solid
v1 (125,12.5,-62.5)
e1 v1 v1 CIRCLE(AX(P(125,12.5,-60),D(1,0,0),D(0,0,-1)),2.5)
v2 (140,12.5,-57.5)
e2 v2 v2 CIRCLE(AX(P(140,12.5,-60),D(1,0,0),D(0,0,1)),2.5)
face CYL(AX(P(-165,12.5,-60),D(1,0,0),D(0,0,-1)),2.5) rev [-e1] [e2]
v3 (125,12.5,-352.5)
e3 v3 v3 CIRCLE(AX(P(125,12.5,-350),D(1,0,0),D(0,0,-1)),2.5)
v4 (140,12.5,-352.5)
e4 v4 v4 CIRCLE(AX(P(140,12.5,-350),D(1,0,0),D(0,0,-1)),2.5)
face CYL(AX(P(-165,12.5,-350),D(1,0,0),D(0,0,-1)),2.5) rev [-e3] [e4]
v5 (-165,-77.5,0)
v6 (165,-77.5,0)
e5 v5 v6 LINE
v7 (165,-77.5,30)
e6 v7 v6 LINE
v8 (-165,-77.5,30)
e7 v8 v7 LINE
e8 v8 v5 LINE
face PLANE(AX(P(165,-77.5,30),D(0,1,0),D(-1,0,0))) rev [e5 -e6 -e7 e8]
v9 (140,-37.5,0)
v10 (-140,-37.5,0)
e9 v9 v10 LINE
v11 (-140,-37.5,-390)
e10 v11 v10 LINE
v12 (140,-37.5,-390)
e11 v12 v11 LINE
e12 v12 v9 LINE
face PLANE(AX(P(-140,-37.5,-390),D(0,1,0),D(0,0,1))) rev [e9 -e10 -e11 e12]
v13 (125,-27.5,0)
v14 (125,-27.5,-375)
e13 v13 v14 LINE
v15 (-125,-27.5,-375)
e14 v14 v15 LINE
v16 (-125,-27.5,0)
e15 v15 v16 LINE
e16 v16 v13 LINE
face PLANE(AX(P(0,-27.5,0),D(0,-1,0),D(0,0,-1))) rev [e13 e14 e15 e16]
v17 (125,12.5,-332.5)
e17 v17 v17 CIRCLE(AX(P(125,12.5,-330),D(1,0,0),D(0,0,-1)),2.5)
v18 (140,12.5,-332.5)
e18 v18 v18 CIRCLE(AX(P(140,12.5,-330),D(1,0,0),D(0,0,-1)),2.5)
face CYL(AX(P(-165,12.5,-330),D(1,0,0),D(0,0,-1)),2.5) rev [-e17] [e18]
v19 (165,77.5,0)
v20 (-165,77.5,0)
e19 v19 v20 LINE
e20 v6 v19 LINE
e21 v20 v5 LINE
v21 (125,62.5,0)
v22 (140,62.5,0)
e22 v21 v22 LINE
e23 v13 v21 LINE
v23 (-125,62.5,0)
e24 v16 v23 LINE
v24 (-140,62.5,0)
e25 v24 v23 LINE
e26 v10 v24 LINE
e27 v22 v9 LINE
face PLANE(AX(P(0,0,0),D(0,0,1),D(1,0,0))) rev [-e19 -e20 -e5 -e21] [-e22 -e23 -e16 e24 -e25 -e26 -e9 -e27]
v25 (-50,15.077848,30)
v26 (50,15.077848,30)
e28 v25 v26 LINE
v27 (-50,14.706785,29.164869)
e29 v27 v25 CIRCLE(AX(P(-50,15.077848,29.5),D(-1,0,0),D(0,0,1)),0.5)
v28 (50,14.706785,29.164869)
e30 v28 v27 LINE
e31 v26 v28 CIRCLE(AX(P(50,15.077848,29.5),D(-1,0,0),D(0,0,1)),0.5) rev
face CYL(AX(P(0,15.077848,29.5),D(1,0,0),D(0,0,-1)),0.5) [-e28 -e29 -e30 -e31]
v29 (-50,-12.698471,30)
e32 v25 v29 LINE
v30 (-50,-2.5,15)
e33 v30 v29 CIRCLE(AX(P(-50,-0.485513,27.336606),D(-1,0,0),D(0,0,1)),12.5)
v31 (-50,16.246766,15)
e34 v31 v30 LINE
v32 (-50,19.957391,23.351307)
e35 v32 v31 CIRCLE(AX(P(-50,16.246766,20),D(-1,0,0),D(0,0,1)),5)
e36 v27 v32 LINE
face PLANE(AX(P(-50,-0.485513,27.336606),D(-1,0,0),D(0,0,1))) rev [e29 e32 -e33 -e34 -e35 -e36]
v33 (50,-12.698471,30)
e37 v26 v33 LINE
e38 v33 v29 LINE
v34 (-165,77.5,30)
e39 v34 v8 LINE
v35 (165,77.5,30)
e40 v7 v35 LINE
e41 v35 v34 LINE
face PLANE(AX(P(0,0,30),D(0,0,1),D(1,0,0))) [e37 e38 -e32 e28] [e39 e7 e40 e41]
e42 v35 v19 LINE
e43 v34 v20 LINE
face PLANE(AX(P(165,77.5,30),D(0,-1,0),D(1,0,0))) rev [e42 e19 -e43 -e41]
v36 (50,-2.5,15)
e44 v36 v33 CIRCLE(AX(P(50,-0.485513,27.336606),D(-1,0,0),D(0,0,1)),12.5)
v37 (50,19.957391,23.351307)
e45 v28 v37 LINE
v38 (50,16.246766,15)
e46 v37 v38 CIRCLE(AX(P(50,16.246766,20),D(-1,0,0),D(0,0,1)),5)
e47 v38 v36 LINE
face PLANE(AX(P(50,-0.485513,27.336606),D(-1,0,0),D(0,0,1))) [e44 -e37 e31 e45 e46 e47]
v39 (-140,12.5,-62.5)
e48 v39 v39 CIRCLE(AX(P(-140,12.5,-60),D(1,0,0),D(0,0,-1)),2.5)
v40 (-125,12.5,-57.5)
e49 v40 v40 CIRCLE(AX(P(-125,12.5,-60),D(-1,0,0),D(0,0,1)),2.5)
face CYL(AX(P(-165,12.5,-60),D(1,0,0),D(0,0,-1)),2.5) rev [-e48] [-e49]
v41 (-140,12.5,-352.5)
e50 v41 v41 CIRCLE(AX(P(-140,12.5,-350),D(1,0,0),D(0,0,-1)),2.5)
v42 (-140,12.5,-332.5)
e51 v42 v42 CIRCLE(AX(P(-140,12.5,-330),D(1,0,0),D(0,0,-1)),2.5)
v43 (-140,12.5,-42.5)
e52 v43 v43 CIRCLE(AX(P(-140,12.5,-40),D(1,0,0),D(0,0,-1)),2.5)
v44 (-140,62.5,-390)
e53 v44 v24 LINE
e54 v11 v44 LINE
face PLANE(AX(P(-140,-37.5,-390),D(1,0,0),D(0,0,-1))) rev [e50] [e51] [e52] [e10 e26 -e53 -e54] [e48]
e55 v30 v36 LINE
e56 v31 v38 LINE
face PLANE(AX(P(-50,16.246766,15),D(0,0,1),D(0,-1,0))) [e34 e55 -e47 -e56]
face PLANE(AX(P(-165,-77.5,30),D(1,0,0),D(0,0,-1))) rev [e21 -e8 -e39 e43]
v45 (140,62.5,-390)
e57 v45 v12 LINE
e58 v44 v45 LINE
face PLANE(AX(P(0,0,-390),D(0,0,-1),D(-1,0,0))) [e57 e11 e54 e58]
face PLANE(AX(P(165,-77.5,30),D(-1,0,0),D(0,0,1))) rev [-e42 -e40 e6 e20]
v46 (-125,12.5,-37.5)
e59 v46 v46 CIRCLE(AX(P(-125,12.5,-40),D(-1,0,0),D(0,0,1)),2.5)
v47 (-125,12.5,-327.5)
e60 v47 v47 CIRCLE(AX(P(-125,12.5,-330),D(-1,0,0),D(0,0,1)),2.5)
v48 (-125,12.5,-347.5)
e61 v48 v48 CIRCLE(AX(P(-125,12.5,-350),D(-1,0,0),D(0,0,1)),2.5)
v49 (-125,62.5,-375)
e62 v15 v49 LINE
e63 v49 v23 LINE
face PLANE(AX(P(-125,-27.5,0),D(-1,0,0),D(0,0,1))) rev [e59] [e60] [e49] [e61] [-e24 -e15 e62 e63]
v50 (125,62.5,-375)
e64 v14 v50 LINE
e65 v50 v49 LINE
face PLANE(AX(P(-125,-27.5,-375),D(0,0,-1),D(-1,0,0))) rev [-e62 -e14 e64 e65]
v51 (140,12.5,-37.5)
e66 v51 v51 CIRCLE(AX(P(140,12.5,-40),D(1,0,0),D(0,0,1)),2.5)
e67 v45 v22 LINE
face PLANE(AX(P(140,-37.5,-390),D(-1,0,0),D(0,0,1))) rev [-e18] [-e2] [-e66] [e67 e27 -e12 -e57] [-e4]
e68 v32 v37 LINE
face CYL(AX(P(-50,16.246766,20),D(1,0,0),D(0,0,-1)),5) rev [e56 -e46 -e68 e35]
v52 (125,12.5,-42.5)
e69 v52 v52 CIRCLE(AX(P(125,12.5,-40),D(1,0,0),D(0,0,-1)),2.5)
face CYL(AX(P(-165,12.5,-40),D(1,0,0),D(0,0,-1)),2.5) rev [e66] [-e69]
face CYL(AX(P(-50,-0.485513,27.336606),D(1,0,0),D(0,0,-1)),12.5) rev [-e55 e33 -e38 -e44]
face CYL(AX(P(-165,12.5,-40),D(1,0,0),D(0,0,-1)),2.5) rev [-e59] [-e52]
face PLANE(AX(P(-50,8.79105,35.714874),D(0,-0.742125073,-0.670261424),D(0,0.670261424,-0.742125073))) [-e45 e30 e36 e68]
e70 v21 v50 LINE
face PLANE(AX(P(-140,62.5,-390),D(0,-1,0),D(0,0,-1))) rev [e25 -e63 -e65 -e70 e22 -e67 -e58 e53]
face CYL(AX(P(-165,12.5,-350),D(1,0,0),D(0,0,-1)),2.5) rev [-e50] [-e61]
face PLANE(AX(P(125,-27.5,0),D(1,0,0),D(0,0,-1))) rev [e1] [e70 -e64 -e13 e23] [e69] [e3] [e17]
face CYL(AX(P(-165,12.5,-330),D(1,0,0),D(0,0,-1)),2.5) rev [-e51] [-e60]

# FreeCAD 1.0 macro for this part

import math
import FreeCAD as App
import Part
import Sketcher
from FreeCAD import Vector


def edges_at(feature, points):
    """Names of the edges that pass closest to the given points."""
    edges = feature.Shape.Edges
    near = lambda p: min(range(len(edges)), key=lambda i: edges[i].distToShape(Part.Vertex(*p))[0])
    return sorted({f"Edge{near(p) + 1}" for p in points})

doc = App.newDocument("Part")
body = doc.addObject("PartDesign::Body", "Body")

sketch1 = doc.addObject("Sketcher::SketchObject", "Sketch")
body.addObject(sketch1)
sketch1.AttachmentSupport = (doc.XY_Plane, [""])
sketch1.MapMode = "FlatFace"
sketch1.addGeometry(Part.LineSegment(Vector(-165, 78, 0), Vector(-165, -78, 0)), False)
sketch1.addGeometry(Part.LineSegment(Vector(-165, -78, 0), Vector(165, -78, 0)), False)
sketch1.addGeometry(Part.LineSegment(Vector(165, -78, 0), Vector(165, 78, 0)), False)
sketch1.addGeometry(Part.LineSegment(Vector(165, 78, 0), Vector(-165, 78, 0)), False)
sketch1.addConstraint(Sketcher.Constraint("Coincident", 0, 2, 1, 1))
sketch1.addConstraint(Sketcher.Constraint("Coincident", 1, 2, 2, 1))
sketch1.addConstraint(Sketcher.Constraint("Coincident", 2, 2, 3, 1))
sketch1.addConstraint(Sketcher.Constraint("Coincident", 3, 2, 0, 1))
sketch1.addConstraint(Sketcher.Constraint("Vertical", 0))
sketch1.addConstraint(Sketcher.Constraint("Horizontal", 1))
sketch1.addConstraint(Sketcher.Constraint("Vertical", 2))
sketch1.addConstraint(Sketcher.Constraint("Horizontal", 3))
sketch1.addConstraint(Sketcher.Constraint("Symmetric", 0, 2, 2, 2, -1, 1))
sketch1.addConstraint(Sketcher.Constraint("DistanceX", 1, 1, 1, 2, 330.0))
sketch1.addConstraint(Sketcher.Constraint("DistanceY", 0, 2, 0, 1, 155.0))
pad1 = doc.addObject("PartDesign::Pad", "Pad")
body.addObject(pad1)
pad1.Profile = sketch1
pad1.Length = 30

sketch2 = doc.addObject("Sketcher::SketchObject", "Sketch001")
body.addObject(sketch2)
sketch2.AttachmentSupport = (doc.XY_Plane, [""])
sketch2.MapMode = "FlatFace"
sketch2.addGeometry(Part.LineSegment(Vector(140, 62, 0), Vector(140, -38, 0)), False)
sketch2.addGeometry(Part.LineSegment(Vector(140, -38, 0), Vector(-140, -38, 0)), False)
sketch2.addGeometry(Part.LineSegment(Vector(-140, -38, 0), Vector(-140, 62, 0)), False)
sketch2.addGeometry(Part.LineSegment(Vector(-140, 62, 0), Vector(140, 62, 0)), False)
sketch2.addConstraint(Sketcher.Constraint("Coincident", 0, 2, 1, 1))
sketch2.addConstraint(Sketcher.Constraint("Coincident", 1, 2, 2, 1))
sketch2.addConstraint(Sketcher.Constraint("Coincident", 2, 2, 3, 1))
sketch2.addConstraint(Sketcher.Constraint("Coincident", 3, 2, 0, 1))
sketch2.addConstraint(Sketcher.Constraint("Vertical", 0))
sketch2.addConstraint(Sketcher.Constraint("Horizontal", 1))
sketch2.addConstraint(Sketcher.Constraint("Vertical", 2))
sketch2.addConstraint(Sketcher.Constraint("Horizontal", 3))
sketch2.addConstraint(Sketcher.Constraint("DistanceX", 1, 2, 1, 1, 280.0))
sketch2.addConstraint(Sketcher.Constraint("DistanceY", 0, 2, 0, 1, 100.0))
sketch2.addConstraint(Sketcher.Constraint("DistanceX", -1, 1, 0, 2, 140.0))
sketch2.addConstraint(Sketcher.Constraint("DistanceY", 0, 2, -1, 1, 37.5))
pad2 = doc.addObject("PartDesign::Pad", "Pad001")
body.addObject(pad2)
pad2.Profile = sketch2
pad2.Length = 390
pad2.Reversed = True

sketch3 = doc.addObject("Sketcher::SketchObject", "Sketch002")
body.addObject(sketch3)
sketch3.AttachmentSupport = (doc.XZ_Plane, [""])
sketch3.MapMode = "FlatFace"
sketch3.AttachmentOffset = App.Placement(Vector(0, 0, -62.5), App.Rotation())
sketch3.addGeometry(Part.LineSegment(Vector(-125, -375, 0), Vector(-125, 0, 0)), False)
sketch3.addGeometry(Part.LineSegment(Vector(-125, 0, 0), Vector(125, 0, 0)), False)
sketch3.addGeometry(Part.LineSegment(Vector(125, 0, 0), Vector(125, -375, 0)), False)
sketch3.addGeometry(Part.LineSegment(Vector(125, -375, 0), Vector(-125, -375, 0)), False)
sketch3.addConstraint(Sketcher.Constraint("Coincident", 0, 2, 1, 1))
sketch3.addConstraint(Sketcher.Constraint("Coincident", 1, 2, 2, 1))
sketch3.addConstraint(Sketcher.Constraint("Coincident", 2, 2, 3, 1))
sketch3.addConstraint(Sketcher.Constraint("Coincident", 3, 2, 0, 1))
sketch3.addConstraint(Sketcher.Constraint("Vertical", 0))
sketch3.addConstraint(Sketcher.Constraint("Horizontal", 1))
sketch3.addConstraint(Sketcher.Constraint("Vertical", 2))
sketch3.addConstraint(Sketcher.Constraint("Horizontal", 3))
sketch3.addConstraint(Sketcher.Constraint("Symmetric", 0, 2, 1, 2, -1, 1))
sketch3.addConstraint(Sketcher.Constraint("DistanceX", 1, 1, 1, 2, 250.0))
sketch3.addConstraint(Sketcher.Constraint("DistanceY", 0, 1, 0, 2, 375.0))
pocket1 = doc.addObject("PartDesign::Pocket", "Pocket")
body.addObject(pocket1)
pocket1.Profile = sketch3
pocket1.Length = 90
pocket1.Reversed = True

sketch4 = doc.addObject("Sketcher::SketchObject", "Sketch003")
body.addObject(sketch4)
sketch4.AttachmentSupport = (doc.YZ_Plane, [""])
sketch4.MapMode = "FlatFace"
sketch4.addGeometry(Part.LineSegment(Vector(20, 23, 0), Vector(9, 36, 0)), False)
sketch4.addGeometry(Part.ArcOfCircle(Part.Circle(Vector(0, 27, 0), Vector(0, 0, 1), 12), math.radians(42), math.radians(261)), False)
sketch4.addGeometry(Part.LineSegment(Vector(-2, 15, 0), Vector(16, 15, 0)), False)
sketch4.addGeometry(Part.ArcOfCircle(Part.Circle(Vector(16, 20, 0), Vector(0, 0, 1), 5), math.radians(-90), math.radians(42)), False)
sketch4.addConstraint(Sketcher.Constraint("Tangent", 0, 2, 1, 1))
sketch4.addConstraint(Sketcher.Constraint("Coincident", 1, 2, 2, 1))
sketch4.addConstraint(Sketcher.Constraint("Tangent", 2, 2, 3, 1))
sketch4.addConstraint(Sketcher.Constraint("Tangent", 3, 2, 0, 1))
sketch4.addConstraint(Sketcher.Constraint("Horizontal", 2))
sketch4.addConstraint(Sketcher.Constraint("Radius", 3, 5.0))
sketch4.addConstraint(Sketcher.Constraint("Radius", 1, 12.5))
sketch4.addConstraint(Sketcher.Constraint("DistanceY", -1, 1, 3, 3, 20.0))
sketch4.addConstraint(Sketcher.Constraint("DistanceX", 1, 2, -1, 1, 2.5))
sketch4.addConstraint(Sketcher.Constraint("DistanceY", 3, 2, 1, 3, 3.985299))
sketch4.addConstraint(Sketcher.Constraint("Distance", 0, 16.65968))
pocket2 = doc.addObject("PartDesign::Pocket", "Pocket001")
body.addObject(pocket2)
pocket2.Profile = sketch4
pocket2.Length = 100
pocket2.Midplane = True
doc.recompute()

fillet = doc.addObject("PartDesign::Fillet", "Fillet")
body.addObject(fillet)
fillet.Base = (pocket2, edges_at(pocket2, [(0, 13.953, 30)]))
fillet.Radius = 0.5

sketch5 = doc.addObject("Sketcher::SketchObject", "Sketch004")
body.addObject(sketch5)
sketch5.AttachmentSupport = (doc.YZ_Plane, [""])
sketch5.MapMode = "FlatFace"
sketch5.AttachmentOffset = App.Placement(Vector(0, 0, 140), App.Rotation())
sketch5.addGeometry(Part.Circle(Vector(12.5, -350, 0), Vector(0, 0, 1), 2.5), False)
sketch5.addGeometry(Part.Circle(Vector(12.5, -330, 0), Vector(0, 0, 1), 2.5), False)
sketch5.addGeometry(Part.Circle(Vector(12.5, -60, 0), Vector(0, 0, 1), 2.5), False)
sketch5.addGeometry(Part.Circle(Vector(12.5, -40, 0), Vector(0, 0, 1), 2.5), False)
sketch5.addConstraint(Sketcher.Constraint("Equal", 0, 1))
sketch5.addConstraint(Sketcher.Constraint("Equal", 1, 2))
sketch5.addConstraint(Sketcher.Constraint("Equal", 2, 3))
sketch5.addConstraint(Sketcher.Constraint("Vertical", 0, 3, 1, 3))
sketch5.addConstraint(Sketcher.Constraint("Vertical", 1, 3, 2, 3))
sketch5.addConstraint(Sketcher.Constraint("Vertical", 2, 3, 3, 3))
sketch5.addConstraint(Sketcher.Constraint("Diameter", 0, 5.0))
sketch5.addConstraint(Sketcher.Constraint("DistanceY", 0, 3, -1, 1, 350.0))
sketch5.addConstraint(Sketcher.Constraint("DistanceY", 1, 3, -1, 1, 330.0))
sketch5.addConstraint(Sketcher.Constraint("DistanceY", 2, 3, -1, 1, 60.0))
sketch5.addConstraint(Sketcher.Constraint("DistanceY", 3, 3, -1, 1, 40.0))
sketch5.addConstraint(Sketcher.Constraint("DistanceX", -1, 1, 0, 3, 12.5))
pocket3 = doc.addObject("PartDesign::Pocket", "Pocket002")
body.addObject(pocket3)
pocket3.Profile = sketch5
pocket3.Type = "ThroughAll"

doc.recompute()
